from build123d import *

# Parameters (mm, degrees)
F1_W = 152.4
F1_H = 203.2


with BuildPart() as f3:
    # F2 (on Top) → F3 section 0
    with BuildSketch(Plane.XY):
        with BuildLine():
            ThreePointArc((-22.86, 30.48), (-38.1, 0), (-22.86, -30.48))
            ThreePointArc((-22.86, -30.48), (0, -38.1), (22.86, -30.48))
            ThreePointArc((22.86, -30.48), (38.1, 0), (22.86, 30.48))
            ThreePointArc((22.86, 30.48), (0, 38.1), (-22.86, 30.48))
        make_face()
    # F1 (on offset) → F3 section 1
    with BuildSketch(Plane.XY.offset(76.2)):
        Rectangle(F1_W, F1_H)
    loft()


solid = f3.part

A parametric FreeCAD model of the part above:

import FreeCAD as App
import Part
import Sketcher
Q = App.Units.Quantity


def add_polygon(sketch, points):
    """Adds a closed chain of lines whose ends are joined by coincident constraints."""
    first, n = sketch.GeometryCount, len(points)
    for a, b in zip(points, points[1:] + points[:1]):
        sketch.addGeometry(Part.LineSegment(App.Vector(*a, 0), App.Vector(*b, 0)), False)
    for i in range(n):
        sketch.addConstraint(Sketcher.Constraint("Coincident", first + i, 2, first + (i + 1) % n, 1))

doc = App.newDocument("Part")
body = doc.addObject("PartDesign::Body", "Body")

# Sketch on XY plane
sketch1 = body.newObject("Sketcher::SketchObject", "Sketch")
sketch1.AttachmentSupport = (doc.getObject("XY_Plane"), [""])
sketch1.MapMode = "FlatFace"
sketch1.addGeometry(Part.Circle(App.Vector(0, 0, 0), App.Vector(0, 0, 1), 38.1), False)
sketch1.addConstraint([
    Sketcher.Constraint("Coincident", 0, 3, -1, 1),
    Sketcher.Constraint("Diameter", 0, Q("3 in")),
])

# Sketch on XY plane
sketch2 = body.newObject("Sketcher::SketchObject", "Sketch001")
sketch2.AttachmentSupport = (doc.getObject("XY_Plane"), [""])
sketch2.MapMode = "FlatFace"
sketch2.AttachmentOffset = App.Placement(App.Vector(0, 0, 3 * 25.4), App.Rotation())
add_polygon(sketch2, [(-76.2, 101.6), (-76.2, -101.6), (76.2, -101.6), (76.2, 101.6)])  # lines 0-3
sketch2.addConstraint([
    Sketcher.Constraint("Vertical", 0),
    Sketcher.Constraint("Horizontal", 1),
    Sketcher.Constraint("Vertical", 2),
    Sketcher.Constraint("Horizontal", 3),
    Sketcher.Constraint("Symmetric", 0, 2, 2, 2, -1, 1),
    Sketcher.Constraint("DistanceX", 1, 1, 1, 2, Q("6 in")),
    Sketcher.Constraint("DistanceY", 0, 2, 0, 1, Q("8 in")),
])

additiveloft = body.newObject("PartDesign::AdditiveLoft", "AdditiveLoft")
additiveloft.Profile = sketch1
additiveloft.Sections = [sketch2]

doc.recompute()
